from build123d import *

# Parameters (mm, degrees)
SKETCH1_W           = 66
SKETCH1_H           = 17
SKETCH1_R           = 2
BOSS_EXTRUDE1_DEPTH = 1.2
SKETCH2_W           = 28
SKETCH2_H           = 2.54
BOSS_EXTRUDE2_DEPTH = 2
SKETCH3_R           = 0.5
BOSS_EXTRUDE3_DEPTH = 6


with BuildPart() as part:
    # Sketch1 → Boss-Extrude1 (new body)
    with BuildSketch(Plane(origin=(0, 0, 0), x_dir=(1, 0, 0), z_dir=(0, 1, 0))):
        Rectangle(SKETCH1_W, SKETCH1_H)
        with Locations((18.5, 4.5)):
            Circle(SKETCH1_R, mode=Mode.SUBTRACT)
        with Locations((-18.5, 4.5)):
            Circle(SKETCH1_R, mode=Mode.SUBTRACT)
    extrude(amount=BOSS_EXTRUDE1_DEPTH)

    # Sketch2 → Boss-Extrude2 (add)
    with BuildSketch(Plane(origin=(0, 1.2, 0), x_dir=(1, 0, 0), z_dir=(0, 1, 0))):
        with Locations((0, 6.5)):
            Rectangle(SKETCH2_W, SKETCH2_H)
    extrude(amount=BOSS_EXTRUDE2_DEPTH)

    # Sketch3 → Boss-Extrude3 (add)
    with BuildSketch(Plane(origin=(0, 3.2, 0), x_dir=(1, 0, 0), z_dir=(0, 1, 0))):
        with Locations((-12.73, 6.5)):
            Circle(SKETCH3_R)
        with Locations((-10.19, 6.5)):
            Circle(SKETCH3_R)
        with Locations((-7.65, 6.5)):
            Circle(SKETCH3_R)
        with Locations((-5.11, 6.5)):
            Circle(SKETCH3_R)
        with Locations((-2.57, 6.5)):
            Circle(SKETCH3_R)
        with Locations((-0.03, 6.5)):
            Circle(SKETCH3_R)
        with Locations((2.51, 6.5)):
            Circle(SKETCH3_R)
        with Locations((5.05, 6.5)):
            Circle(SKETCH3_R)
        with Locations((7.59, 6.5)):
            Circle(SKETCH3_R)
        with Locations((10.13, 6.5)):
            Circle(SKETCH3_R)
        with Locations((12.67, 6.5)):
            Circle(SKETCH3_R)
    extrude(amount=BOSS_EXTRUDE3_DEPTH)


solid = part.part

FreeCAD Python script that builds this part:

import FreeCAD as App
import Part
import Sketcher
from FreeCAD import Vector
Q = App.Units.Quantity

doc = App.newDocument("Part")
body = doc.addObject("PartDesign::Body", "Body")

sketch1 = doc.addObject("Sketcher::SketchObject", "Sketch")
body.addObject(sketch1)
sketch1.AttachmentSupport = (doc.XZ_Plane, [""])
sketch1.MapMode = "FlatFace"
sketch1.addGeometry([
    Part.LineSegment(Vector(-33, -8.5, 0), Vector(-33, 8.5, 0)),
    Part.LineSegment(Vector(-33, 8.5, 0), Vector(33, 8.5, 0)),
    Part.LineSegment(Vector(33, 8.5, 0), Vector(33, -8.5, 0)),
    Part.LineSegment(Vector(33, -8.5, 0), Vector(-33, -8.5, 0)),
    Part.Circle(Vector(-18.5, -4.5, 0), Vector(0, 0, 1), 2),
    Part.Circle(Vector(18.5, -4.5, 0), Vector(0, 0, 1), 2),
], False)
sketch1.addConstraint([
    Sketcher.Constraint("Coincident", 0, 2, 1, 1),
    Sketcher.Constraint("Coincident", 1, 2, 2, 1),
    Sketcher.Constraint("Coincident", 2, 2, 3, 1),
    Sketcher.Constraint("Coincident", 3, 2, 0, 1),
    Sketcher.Constraint("Vertical", 0),
    Sketcher.Constraint("Horizontal", 1),
    Sketcher.Constraint("Vertical", 2),
    Sketcher.Constraint("Horizontal", 3),
    Sketcher.Constraint("Equal", 4, 5),
    Sketcher.Constraint("Symmetric", 0, 2, 2, 2, -1, 1),
    Sketcher.Constraint("Symmetric", 4, 3, 5, 3, -2),
    Sketcher.Constraint("Diameter", 4, Q("4 mm")),
    Sketcher.Constraint("DistanceX", 1, 1, 1, 2, Q("66 mm")),
    Sketcher.Constraint("DistanceY", 0, 1, 0, 2, Q("17 mm")),
    Sketcher.Constraint("DistanceX", 4, 3, 5, 3, Q("37 mm")),
    Sketcher.Constraint("DistanceY", 4, 3, 0, 2, Q("13 mm")),
])
pad1 = doc.addObject("PartDesign::Pad", "Pad")
body.addObject(pad1)
pad1.Profile = sketch1
pad1.Length = 1.2
pad1.Reversed = True

sketch2 = doc.addObject("Sketcher::SketchObject", "Sketch001")
body.addObject(sketch2)
sketch2.AttachmentSupport = (doc.XZ_Plane, [""])
sketch2.MapMode = "FlatFace"
sketch2.AttachmentOffset = App.Placement(Vector(0, 0, -1.2), App.Rotation())
sketch2.addGeometry([
    Part.LineSegment(Vector(-14, -7.8, 0), Vector(-14, -5.2, 0)),
    Part.LineSegment(Vector(-14, -5.2, 0), Vector(14, -5.2, 0)),
    Part.LineSegment(Vector(14, -5.2, 0), Vector(14, -7.8, 0)),
    Part.LineSegment(Vector(14, -7.8, 0), Vector(-14, -7.8, 0)),
], False)
sketch2.addConstraint([
    Sketcher.Constraint("Coincident", 0, 2, 1, 1),
    Sketcher.Constraint("Coincident", 1, 2, 2, 1),
    Sketcher.Constraint("Coincident", 2, 2, 3, 1),
    Sketcher.Constraint("Coincident", 3, 2, 0, 1),
    Sketcher.Constraint("Vertical", 0),
    Sketcher.Constraint("Horizontal", 1),
    Sketcher.Constraint("Vertical", 2),
    Sketcher.Constraint("Horizontal", 3),
    Sketcher.Constraint("DistanceX", 1, 1, 1, 2, Q("28 mm")),
    Sketcher.Constraint("DistanceX", 0, 2, -1, 1, Q("14 mm")),
    Sketcher.Constraint("DistanceY", 0, 1, 0, 2, Q("2.54 mm")),
    Sketcher.Constraint("DistanceY", 0, 2, -1, 1, Q("5.23 mm")),
])
pad2 = doc.addObject("PartDesign::Pad", "Pad001")
body.addObject(pad2)
pad2.Profile = sketch2
pad2.Length = 2
pad2.Reversed = True

sketch3 = doc.addObject("Sketcher::SketchObject", "Sketch002")
body.addObject(sketch3)
sketch3.AttachmentSupport = (doc.XZ_Plane, [""])
sketch3.MapMode = "FlatFace"
sketch3.AttachmentOffset = App.Placement(Vector(0, 0, -3.2), App.Rotation())
sketch3.addGeometry([
    Part.Circle(Vector(-12.7, -6.5, 0), Vector(0, 0, 1), 0.5),
    Part.Circle(Vector(-10.2, -6.5, 0), Vector(0, 0, 1), 0.5),
    Part.Circle(Vector(-7.7, -6.5, 0), Vector(0, 0, 1), 0.5),
    Part.Circle(Vector(-5.1, -6.5, 0), Vector(0, 0, 1), 0.5),
    Part.Circle(Vector(-2.6, -6.5, 0), Vector(0, 0, 1), 0.5),
    Part.Circle(Vector(0, -6.5, 0), Vector(0, 0, 1), 0.5),
    Part.Circle(Vector(2.5, -6.5, 0), Vector(0, 0, 1), 0.5),
    Part.Circle(Vector(5, -6.5, 0), Vector(0, 0, 1), 0.5),
    Part.Circle(Vector(7.6, -6.5, 0), Vector(0, 0, 1), 0.5),
    Part.Circle(Vector(10.1, -6.5, 0), Vector(0, 0, 1), 0.5),
    Part.Circle(Vector(12.7, -6.5, 0), Vector(0, 0, 1), 0.5),
], False)
sketch3.addConstraint([
    Sketcher.Constraint("Equal", 0, 1),
    Sketcher.Constraint("Equal", 1, 2),
    Sketcher.Constraint("Equal", 2, 3),
    Sketcher.Constraint("Equal", 3, 4),
    Sketcher.Constraint("Equal", 4, 5),
    Sketcher.Constraint("Equal", 5, 6),
    Sketcher.Constraint("Equal", 6, 7),
    Sketcher.Constraint("Equal", 7, 8),
    Sketcher.Constraint("Equal", 8, 9),
    Sketcher.Constraint("Equal", 9, 10),
    Sketcher.Constraint("Horizontal", 0, 3, 1, 3),
    Sketcher.Constraint("Horizontal", 1, 3, 2, 3),
    Sketcher.Constraint("Horizontal", 2, 3, 3, 3),
    Sketcher.Constraint("Horizontal", 3, 3, 4, 3),
    Sketcher.Constraint("Horizontal", 4, 3, 5, 3),
    Sketcher.Constraint("Horizontal", 5, 3, 6, 3),
    Sketcher.Constraint("Horizontal", 6, 3, 7, 3),
    Sketcher.Constraint("Horizontal", 7, 3, 8, 3),
    Sketcher.Constraint("Horizontal", 8, 3, 9, 3),
    Sketcher.Constraint("Horizontal", 9, 3, 10, 3),
    Sketcher.Constraint("Diameter", 0, Q("1 mm")),
    Sketcher.Constraint("DistanceY", 0, 3, -1, 1, Q("6.5 mm")),
    Sketcher.Constraint("DistanceX", 0, 3, 5, 3, Q("12.7 mm")),
    Sketcher.Constraint("DistanceX", 1, 3, 6, 3, Q("12.7 mm")),
    Sketcher.Constraint("DistanceX", 2, 3, 7, 3, Q("12.7 mm")),
    Sketcher.Constraint("DistanceX", 3, 3, 8, 3, Q("12.7 mm")),
    Sketcher.Constraint("DistanceX", 4, 3, 9, 3, Q("12.7 mm")),
    Sketcher.Constraint("DistanceX", 5, 3, 10, 3, Q("12.7 mm")),
    Sketcher.Constraint("DistanceX", 0, 3, -1, 1, Q("12.73 mm")),
    Sketcher.Constraint("DistanceX", 1, 3, -1, 1, Q("10.19 mm")),
    Sketcher.Constraint("DistanceX", 2, 3, -1, 1, Q("7.65 mm")),
    Sketcher.Constraint("DistanceX", 3, 3, -1, 1, Q("5.11 mm")),
    Sketcher.Constraint("DistanceX", 4, 3, -1, 1, Q("2.57 mm")),
])
pad3 = doc.addObject("PartDesign::Pad", "Pad002")
body.addObject(pad3)
pad3.Profile = sketch3
pad3.Length = 6
pad3.Reversed = True

doc.recompute()
